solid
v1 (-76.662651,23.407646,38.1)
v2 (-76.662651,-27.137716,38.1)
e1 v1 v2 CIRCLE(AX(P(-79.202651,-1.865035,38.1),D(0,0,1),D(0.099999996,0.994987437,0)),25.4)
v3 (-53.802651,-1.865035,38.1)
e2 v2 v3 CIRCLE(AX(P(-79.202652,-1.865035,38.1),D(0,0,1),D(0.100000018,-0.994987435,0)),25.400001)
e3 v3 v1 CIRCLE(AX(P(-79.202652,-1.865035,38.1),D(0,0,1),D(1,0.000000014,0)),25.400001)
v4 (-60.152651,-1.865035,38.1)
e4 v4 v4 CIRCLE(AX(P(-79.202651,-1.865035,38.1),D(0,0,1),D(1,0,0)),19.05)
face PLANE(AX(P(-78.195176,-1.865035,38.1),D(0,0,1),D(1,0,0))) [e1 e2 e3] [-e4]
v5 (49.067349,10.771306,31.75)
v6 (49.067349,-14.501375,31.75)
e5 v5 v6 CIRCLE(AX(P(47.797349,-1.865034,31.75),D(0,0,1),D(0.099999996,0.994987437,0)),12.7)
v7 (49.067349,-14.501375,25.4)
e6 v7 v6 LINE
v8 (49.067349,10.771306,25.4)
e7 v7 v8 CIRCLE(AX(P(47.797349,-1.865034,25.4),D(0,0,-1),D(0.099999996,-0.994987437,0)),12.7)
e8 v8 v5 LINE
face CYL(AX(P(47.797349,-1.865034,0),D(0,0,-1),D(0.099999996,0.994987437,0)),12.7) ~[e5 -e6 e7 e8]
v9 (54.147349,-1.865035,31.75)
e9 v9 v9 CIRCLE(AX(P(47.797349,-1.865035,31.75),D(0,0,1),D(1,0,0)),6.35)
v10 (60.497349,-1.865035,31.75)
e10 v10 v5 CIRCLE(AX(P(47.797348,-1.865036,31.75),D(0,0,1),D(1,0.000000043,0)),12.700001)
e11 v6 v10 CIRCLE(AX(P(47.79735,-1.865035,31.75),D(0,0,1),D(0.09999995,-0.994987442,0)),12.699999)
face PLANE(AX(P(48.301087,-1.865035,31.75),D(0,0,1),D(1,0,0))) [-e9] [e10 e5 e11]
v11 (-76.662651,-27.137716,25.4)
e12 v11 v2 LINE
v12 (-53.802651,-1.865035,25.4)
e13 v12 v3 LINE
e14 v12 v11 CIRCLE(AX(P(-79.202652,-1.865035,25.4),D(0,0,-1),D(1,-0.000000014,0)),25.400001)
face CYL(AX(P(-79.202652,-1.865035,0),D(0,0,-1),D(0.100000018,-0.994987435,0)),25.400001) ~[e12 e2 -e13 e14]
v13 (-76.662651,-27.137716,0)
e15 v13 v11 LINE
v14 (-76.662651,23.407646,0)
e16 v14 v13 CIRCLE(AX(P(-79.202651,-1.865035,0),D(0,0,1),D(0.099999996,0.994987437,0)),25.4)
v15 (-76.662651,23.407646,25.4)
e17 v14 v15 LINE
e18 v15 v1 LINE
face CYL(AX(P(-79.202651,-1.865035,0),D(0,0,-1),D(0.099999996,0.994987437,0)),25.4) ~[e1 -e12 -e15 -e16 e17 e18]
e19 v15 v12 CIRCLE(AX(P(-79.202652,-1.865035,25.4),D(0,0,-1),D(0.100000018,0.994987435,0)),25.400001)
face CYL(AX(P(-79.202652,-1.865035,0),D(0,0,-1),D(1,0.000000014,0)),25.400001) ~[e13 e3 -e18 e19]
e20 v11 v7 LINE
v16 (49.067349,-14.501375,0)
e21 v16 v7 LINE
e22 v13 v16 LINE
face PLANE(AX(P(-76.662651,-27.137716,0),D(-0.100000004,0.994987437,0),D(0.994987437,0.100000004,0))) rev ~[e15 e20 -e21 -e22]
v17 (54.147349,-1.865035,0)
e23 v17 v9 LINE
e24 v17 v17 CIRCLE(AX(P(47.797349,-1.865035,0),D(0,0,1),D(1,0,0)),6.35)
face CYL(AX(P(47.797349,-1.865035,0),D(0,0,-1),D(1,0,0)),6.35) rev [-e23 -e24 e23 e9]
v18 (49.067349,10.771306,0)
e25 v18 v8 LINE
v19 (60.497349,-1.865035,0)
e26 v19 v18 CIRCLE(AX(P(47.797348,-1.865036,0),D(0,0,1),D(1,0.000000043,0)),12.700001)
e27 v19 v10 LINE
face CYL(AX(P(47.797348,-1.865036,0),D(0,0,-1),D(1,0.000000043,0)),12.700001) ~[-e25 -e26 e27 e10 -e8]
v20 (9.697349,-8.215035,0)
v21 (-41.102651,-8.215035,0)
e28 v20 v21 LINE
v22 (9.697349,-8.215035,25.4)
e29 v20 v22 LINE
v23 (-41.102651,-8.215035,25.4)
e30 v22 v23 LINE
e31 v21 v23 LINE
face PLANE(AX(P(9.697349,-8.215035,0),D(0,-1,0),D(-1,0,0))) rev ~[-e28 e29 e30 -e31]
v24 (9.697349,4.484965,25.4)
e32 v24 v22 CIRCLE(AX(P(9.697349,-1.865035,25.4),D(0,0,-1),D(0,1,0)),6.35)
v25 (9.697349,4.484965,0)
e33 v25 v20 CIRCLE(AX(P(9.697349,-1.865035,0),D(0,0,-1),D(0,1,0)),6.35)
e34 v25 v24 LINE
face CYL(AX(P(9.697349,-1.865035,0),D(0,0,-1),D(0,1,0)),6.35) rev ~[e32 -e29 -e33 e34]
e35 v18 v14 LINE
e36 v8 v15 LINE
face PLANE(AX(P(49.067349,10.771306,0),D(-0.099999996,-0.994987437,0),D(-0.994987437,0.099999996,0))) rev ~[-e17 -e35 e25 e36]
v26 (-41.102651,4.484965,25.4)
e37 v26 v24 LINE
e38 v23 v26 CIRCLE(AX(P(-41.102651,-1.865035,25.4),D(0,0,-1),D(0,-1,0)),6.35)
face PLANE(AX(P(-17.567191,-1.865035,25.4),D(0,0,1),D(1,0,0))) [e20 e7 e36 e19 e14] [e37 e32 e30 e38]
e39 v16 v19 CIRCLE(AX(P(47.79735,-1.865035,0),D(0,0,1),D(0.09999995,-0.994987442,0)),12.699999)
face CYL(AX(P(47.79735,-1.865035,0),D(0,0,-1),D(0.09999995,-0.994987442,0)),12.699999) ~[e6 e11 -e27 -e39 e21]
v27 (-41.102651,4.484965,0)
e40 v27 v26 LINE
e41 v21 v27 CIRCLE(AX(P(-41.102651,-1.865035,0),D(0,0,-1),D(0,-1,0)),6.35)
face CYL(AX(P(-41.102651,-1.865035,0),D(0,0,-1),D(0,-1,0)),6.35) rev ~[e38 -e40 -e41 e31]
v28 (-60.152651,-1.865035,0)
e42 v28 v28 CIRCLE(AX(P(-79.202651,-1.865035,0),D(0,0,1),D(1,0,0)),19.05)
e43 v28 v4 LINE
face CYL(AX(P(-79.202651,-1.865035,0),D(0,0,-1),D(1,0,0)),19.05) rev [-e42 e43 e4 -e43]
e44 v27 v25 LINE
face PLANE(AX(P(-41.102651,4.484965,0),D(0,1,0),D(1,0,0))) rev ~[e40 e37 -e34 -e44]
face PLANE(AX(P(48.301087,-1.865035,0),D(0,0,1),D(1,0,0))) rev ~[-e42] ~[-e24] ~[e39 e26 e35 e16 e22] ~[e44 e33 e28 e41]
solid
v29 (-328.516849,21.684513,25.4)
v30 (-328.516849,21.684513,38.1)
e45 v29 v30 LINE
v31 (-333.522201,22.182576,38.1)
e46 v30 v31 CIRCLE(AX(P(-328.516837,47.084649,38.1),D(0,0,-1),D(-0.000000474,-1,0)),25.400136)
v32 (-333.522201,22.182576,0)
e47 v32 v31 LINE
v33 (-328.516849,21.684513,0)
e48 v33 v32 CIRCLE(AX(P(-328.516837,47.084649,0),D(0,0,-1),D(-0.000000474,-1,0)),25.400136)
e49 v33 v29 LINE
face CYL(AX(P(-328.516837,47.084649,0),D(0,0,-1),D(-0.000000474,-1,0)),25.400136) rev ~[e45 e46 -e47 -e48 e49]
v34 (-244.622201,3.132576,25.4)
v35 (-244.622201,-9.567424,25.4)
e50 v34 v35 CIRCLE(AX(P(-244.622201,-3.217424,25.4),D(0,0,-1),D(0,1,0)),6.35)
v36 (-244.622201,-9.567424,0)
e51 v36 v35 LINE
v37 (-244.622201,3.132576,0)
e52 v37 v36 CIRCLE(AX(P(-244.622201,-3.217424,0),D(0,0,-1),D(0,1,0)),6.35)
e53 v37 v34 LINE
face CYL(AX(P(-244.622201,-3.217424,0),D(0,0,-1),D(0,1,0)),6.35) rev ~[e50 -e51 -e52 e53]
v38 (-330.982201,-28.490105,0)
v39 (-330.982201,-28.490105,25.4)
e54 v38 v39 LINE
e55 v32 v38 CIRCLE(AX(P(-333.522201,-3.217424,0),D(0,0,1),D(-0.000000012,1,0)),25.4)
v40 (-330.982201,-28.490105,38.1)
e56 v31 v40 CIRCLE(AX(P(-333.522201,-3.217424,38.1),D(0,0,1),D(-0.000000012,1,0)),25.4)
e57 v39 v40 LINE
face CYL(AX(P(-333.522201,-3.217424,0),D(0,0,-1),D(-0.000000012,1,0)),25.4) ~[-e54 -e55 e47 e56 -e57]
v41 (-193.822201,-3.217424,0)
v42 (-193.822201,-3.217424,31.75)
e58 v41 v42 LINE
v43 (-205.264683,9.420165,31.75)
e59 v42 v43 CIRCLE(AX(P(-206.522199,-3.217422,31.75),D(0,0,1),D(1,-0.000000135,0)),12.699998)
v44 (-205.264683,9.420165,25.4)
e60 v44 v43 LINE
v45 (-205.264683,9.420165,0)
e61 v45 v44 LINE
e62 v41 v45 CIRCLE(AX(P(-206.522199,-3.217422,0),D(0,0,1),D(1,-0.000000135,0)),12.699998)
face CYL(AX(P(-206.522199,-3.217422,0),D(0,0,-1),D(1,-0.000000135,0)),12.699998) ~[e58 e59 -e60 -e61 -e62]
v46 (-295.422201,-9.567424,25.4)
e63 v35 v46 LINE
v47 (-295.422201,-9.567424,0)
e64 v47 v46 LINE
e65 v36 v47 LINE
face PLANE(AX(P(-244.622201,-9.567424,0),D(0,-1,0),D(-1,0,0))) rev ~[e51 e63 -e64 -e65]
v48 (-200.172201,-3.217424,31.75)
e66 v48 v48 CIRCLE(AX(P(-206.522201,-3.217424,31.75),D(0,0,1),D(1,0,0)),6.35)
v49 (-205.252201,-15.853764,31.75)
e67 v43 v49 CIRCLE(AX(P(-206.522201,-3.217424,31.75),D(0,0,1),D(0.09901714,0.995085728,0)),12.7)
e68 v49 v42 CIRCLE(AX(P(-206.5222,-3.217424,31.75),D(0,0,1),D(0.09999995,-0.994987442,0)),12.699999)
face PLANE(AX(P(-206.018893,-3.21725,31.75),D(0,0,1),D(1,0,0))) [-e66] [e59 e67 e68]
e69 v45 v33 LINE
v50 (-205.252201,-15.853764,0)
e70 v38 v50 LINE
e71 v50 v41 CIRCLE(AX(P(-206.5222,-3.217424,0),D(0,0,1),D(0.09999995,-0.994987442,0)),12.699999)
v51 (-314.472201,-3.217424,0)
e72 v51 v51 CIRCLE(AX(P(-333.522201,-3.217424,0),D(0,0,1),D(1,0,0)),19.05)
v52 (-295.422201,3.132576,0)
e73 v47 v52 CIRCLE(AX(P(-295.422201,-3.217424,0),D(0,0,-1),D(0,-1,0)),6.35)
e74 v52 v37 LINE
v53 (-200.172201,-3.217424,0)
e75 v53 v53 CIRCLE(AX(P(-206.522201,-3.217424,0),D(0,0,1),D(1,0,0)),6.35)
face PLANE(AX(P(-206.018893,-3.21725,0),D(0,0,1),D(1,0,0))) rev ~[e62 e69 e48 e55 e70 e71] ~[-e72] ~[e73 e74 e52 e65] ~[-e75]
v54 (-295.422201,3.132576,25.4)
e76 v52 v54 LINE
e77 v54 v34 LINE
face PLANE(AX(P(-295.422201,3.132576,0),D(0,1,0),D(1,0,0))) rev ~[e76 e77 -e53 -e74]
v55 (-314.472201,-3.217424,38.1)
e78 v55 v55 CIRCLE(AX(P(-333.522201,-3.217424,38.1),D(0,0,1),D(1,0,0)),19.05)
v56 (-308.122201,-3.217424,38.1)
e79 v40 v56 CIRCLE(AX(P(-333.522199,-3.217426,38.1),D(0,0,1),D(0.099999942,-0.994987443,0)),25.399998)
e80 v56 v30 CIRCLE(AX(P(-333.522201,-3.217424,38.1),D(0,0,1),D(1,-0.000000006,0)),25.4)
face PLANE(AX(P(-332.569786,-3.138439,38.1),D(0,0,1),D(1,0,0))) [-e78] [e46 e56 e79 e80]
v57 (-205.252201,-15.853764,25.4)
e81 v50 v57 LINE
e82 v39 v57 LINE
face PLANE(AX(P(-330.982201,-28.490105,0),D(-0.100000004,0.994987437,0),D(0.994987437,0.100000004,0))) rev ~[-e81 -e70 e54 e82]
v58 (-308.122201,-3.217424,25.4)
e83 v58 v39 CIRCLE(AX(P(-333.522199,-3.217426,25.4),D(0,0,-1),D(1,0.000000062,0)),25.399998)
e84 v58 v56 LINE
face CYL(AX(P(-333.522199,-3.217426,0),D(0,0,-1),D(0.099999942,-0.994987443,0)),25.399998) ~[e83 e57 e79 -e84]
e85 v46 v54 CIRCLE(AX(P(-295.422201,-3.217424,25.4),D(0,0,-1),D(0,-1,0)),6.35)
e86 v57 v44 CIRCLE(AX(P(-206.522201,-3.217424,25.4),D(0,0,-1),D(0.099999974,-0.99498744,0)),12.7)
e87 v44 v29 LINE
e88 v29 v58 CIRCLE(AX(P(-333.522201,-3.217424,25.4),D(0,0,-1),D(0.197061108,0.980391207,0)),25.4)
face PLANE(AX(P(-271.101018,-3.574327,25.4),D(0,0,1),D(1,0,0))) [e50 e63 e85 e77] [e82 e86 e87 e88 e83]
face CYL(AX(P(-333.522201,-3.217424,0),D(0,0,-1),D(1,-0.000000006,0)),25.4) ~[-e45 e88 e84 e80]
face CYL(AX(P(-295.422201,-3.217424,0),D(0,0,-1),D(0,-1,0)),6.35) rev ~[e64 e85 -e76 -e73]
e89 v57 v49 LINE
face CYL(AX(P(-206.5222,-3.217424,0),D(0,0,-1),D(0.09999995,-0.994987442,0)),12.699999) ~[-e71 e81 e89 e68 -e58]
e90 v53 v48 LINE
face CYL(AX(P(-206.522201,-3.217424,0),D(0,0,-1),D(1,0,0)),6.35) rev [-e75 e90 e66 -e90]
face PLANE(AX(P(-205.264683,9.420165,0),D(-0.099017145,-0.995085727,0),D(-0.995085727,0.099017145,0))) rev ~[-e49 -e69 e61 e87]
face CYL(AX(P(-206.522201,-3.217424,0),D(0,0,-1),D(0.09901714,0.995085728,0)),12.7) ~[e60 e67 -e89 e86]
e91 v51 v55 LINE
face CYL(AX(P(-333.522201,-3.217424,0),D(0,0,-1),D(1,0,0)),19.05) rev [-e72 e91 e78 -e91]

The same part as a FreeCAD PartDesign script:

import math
import FreeCAD as App
import Part
import Sketcher

V = App.Vector
Q = App.Units.Quantity

doc = App.newDocument("Part")
params = doc.addObject("Spreadsheet::Sheet", "Params")
for row, (alias, value) in enumerate([
    ("sketch1_radius", "1 in"),
    ("sketch1_diameter", "1.5 in"),
    ("pad1_length", "1.5 in"),
    ("sketch2_radius", "1 in"),
    ("sketch2_radius2", "0.5 in"),
    ("sketch2_width", "2 in"),
    ("sketch2_radius3", "0.25 in"),
    ("pad2_length", "1 in"),
    ("sketch3_diameter", "0.5 in"),
    ("sketch3_radius", "0.5 in"),
    ("pad3_length", "1.25 in"),
    ("sketch4_radius", "1 in"),
    ("sketch4_diameter", "1.5 in"),
    ("pad4_length", "1.5 in"),
    ("sketch5_radius", "0.9999999 in"),
    ("sketch5_radius2", "0.5 in"),
    ("sketch5_width", "2 in"),
    ("sketch5_radius3", "0.25 in"),
    ("pad5_length", "1 in"),
    ("sketch6_diameter", "0.5 in"),
    ("sketch6_radius", "0.5 in"),
    ("pad6_length", "1.25 in"),
], start=1):
    params.set(f"A{row}", alias)
    params.set(f"B{row}", "=" + value)
    params.setAlias(f"B{row}", alias)

body = doc.addObject("PartDesign::Body", "Body")

sketch1 = doc.addObject("Sketcher::SketchObject", "Sketch")
body.addObject(sketch1)
sketch1.AttachmentSupport = (doc.XY_Plane, [""])
sketch1.MapMode = "FlatFace"
sketch1.addGeometry([
    Part.ArcOfCircle(Part.Circle(V(-79, -2, 0), V(0, 0, 1), 25), math.radians(-84), math.radians(0)),
    Part.ArcOfCircle(Part.Circle(V(-79, -2, 0), V(0, 0, 1), 25), math.radians(0), math.radians(84)),
    Part.ArcOfCircle(Part.Circle(V(-79, -2, 0), V(0, 0, 1), 25), math.radians(84), math.radians(276)),
    Part.Circle(V(-79, -2, 0), V(0, 0, 1), 19),
], False)
sketch1.addConstraint([
    Sketcher.Constraint("Tangent", 0, 2, 1, 1),
    Sketcher.Constraint("Tangent", 1, 2, 2, 1),
    Sketcher.Constraint("Tangent", 2, 2, 0, 1),
    Sketcher.Constraint("Coincident", 3, 3, 0, 3),
    Sketcher.Constraint("Horizontal", 3, 3, 0, 2),
    Sketcher.Constraint("Vertical", 1, 2, 2, 2),
    Sketcher.Constraint("Radius", 0, Q("1 in")),
    Sketcher.Constraint("Diameter", 3, Q("1.5 in")),
    Sketcher.Constraint("DistanceX", 0, 3, 1, 2, Q("0.1 in")),
    Sketcher.Constraint("DistanceX", 0, 3, -1, 1, Q("79.202652 mm")),
    Sketcher.Constraint("DistanceY", 0, 3, -1, 1, Q("1.865035 mm")),
])
sketch1.setExpression("Constraints[6]", "Params.sketch1_radius")
sketch1.setExpression("Constraints[7]", "Params.sketch1_diameter")
pad1 = doc.addObject("PartDesign::Pad", "Pad")
body.addObject(pad1)
pad1.Profile = sketch1
pad1.setExpression("Length", "Params.pad1_length")

sketch2 = doc.addObject("Sketcher::SketchObject", "Sketch001")
body.addObject(sketch2)
sketch2.AttachmentSupport = (doc.XY_Plane, [""])
sketch2.MapMode = "FlatFace"
sketch2.addGeometry([
    Part.ArcOfCircle(Part.Circle(V(-79, -2, 0), V(0, 0, 1), 25), math.radians(0), math.radians(84)),
    Part.ArcOfCircle(Part.Circle(V(-79, -2, 0), V(0, 0, 1), 25), math.radians(-84), math.radians(0)),
    Part.LineSegment(V(-77, -27, 0), V(49, -15, 0)),
    Part.ArcOfCircle(Part.Circle(V(48, -2, 0), V(0, 0, 1), 13), math.radians(84), math.radians(276)),
    Part.LineSegment(V(49, 11, 0), V(-77, 23, 0)),
    Part.LineSegment(V(10, -8, 0), V(-41, -8, 0)),
    Part.ArcOfCircle(Part.Circle(V(-41, -2, 0), V(0, 0, 1), 6), math.radians(90), math.radians(270)),
    Part.LineSegment(V(-41, 4, 0), V(10, 4, 0)),
    Part.ArcOfCircle(Part.Circle(V(10, -2, 0), V(0, 0, 1), 6), math.radians(-90), math.radians(90)),
], False)
sketch2.addConstraint([
    Sketcher.Constraint("Tangent", 0, 1, 1, 2),
    Sketcher.Constraint("Tangent", 1, 1, 2, 1),
    Sketcher.Constraint("Tangent", 2, 2, 3, 2),
    Sketcher.Constraint("Tangent", 3, 1, 4, 1),
    Sketcher.Constraint("Tangent", 4, 2, 0, 2),
    Sketcher.Constraint("Tangent", 5, 2, 6, 2),
    Sketcher.Constraint("Tangent", 6, 1, 7, 1),
    Sketcher.Constraint("Tangent", 7, 2, 8, 2),
    Sketcher.Constraint("Tangent", 8, 1, 5, 1),
    Sketcher.Constraint("Horizontal", 5),
    Sketcher.Constraint("Horizontal", 7),
    Sketcher.Constraint("Equal", 0, 1),
    Sketcher.Constraint("Horizontal", 1, 3, 3, 3),
    Sketcher.Constraint("Horizontal", 3, 3, 6, 3),
    Sketcher.Constraint("Horizontal", 8, 3, 0, 1),
    Sketcher.Constraint("Radius", 0, Q("1 in")),
    Sketcher.Constraint("Radius", 3, Q("0.5 in")),
    Sketcher.Constraint("DistanceX", 5, 2, 5, 1, Q("2 in")),
    Sketcher.Constraint("Radius", 6, Q("0.25 in")),
    Sketcher.Constraint("DistanceX", 0, 3, 3, 3, Q("5 in")),
    Sketcher.Constraint("DistanceX", 0, 3, 6, 3, Q("1.5 in")),
    Sketcher.Constraint("DistanceX", 0, 3, -1, 1, Q("79.202652 mm")),
    Sketcher.Constraint("DistanceY", 0, 3, -1, 1, Q("1.865035 mm")),
])
sketch2.setExpression("Constraints[15]", "Params.sketch2_radius")
sketch2.setExpression("Constraints[16]", "Params.sketch2_radius2")
sketch2.setExpression("Constraints[17]", "Params.sketch2_width")
sketch2.setExpression("Constraints[18]", "Params.sketch2_radius3")
pad2 = doc.addObject("PartDesign::Pad", "Pad001")
body.addObject(pad2)
pad2.Profile = sketch2
pad2.setExpression("Length", "Params.pad2_length")

sketch3 = doc.addObject("Sketcher::SketchObject", "Sketch002")
body.addObject(sketch3)
sketch3.AttachmentSupport = (doc.XY_Plane, [""])
sketch3.MapMode = "FlatFace"
sketch3.addGeometry([
    Part.ArcOfCircle(Part.Circle(V(48, -2, 0), V(0, 0, 1), 13), math.radians(0), math.radians(84)),
    Part.ArcOfCircle(Part.Circle(V(48, -2, 0), V(0, 0, 1), 13), math.radians(84), math.radians(276)),
    Part.ArcOfCircle(Part.Circle(V(48, -2, 0), V(0, 0, 1), 13), math.radians(-84), math.radians(0)),
    Part.Circle(V(48, -2, 0), V(0, 0, 1), 6),
], False)
sketch3.addConstraint([
    Sketcher.Constraint("Tangent", 0, 2, 1, 1),
    Sketcher.Constraint("Tangent", 1, 2, 2, 1),
    Sketcher.Constraint("Tangent", 2, 2, 0, 1),
    Sketcher.Constraint("Coincident", 3, 3, 0, 3),
    Sketcher.Constraint("Horizontal", 3, 3, 2, 2),
    Sketcher.Constraint("Vertical", 0, 2, 1, 2),
    Sketcher.Constraint("Diameter", 3, Q("0.5 in")),
    Sketcher.Constraint("Radius", 0, Q("0.5 in")),
    Sketcher.Constraint("DistanceX", 1, 3, 0, 2, Q("0.05 in")),
    Sketcher.Constraint("DistanceX", -1, 1, 1, 3, Q("47.797349 mm")),
    Sketcher.Constraint("DistanceY", 0, 3, -1, 1, Q("1.865036 mm")),
])
sketch3.setExpression("Constraints[6]", "Params.sketch3_diameter")
sketch3.setExpression("Constraints[7]", "Params.sketch3_radius")
pad3 = doc.addObject("PartDesign::Pad", "Pad002")
body.addObject(pad3)
pad3.Profile = sketch3
pad3.setExpression("Length", "Params.pad3_length")
body2 = doc.addObject("PartDesign::Body", "Body001")

sketch4 = doc.addObject("Sketcher::SketchObject", "Sketch003")
body2.addObject(sketch4)
sketch4.AttachmentSupport = (doc.getObject("XY_Plane001"), [""])
sketch4.MapMode = "FlatFace"
sketch4.addGeometry([
    Part.ArcOfCircle(Part.Circle(V(-329, 47, 0), V(0, 0, 1), 25), math.radians(-101.37), math.radians(-90)),
    Part.ArcOfCircle(Part.Circle(V(-334, -3, 0), V(0, 0, 1), 25), math.radians(90), math.radians(276)),
    Part.ArcOfCircle(Part.Circle(V(-334, -3, 0), V(0, 0, 1), 25), math.radians(-84), math.radians(0)),
    Part.ArcOfCircle(Part.Circle(V(-334, -3, 0), V(0, 0, 1), 25), math.radians(0), math.radians(79)),
    Part.Circle(V(-334, -3, 0), V(0, 0, 1), 19),
], False)
sketch4.addConstraint([
    Sketcher.Constraint("Coincident", 0, 1, 1, 1),
    Sketcher.Constraint("Tangent", 1, 2, 2, 1),
    Sketcher.Constraint("Tangent", 2, 2, 3, 1),
    Sketcher.Constraint("Coincident", 3, 2, 0, 2),
    Sketcher.Constraint("Coincident", 3, 3, 1, 3),
    Sketcher.Constraint("Coincident", 4, 3, 1, 3),
    Sketcher.Constraint("Horizontal", 4, 3, 2, 2),
    Sketcher.Constraint("Vertical", 4, 3, 0, 1),
    Sketcher.Constraint("Radius", 1, Q("1 in")),
    Sketcher.Constraint("Diameter", 4, Q("1.5 in")),
    Sketcher.Constraint("DistanceX", 2, 3, 1, 2, Q("0.0999999 in")),
    Sketcher.Constraint("Radius", 0, Q("25.400136 mm")),
    Sketcher.Constraint("DistanceX", 1, 3, -1, 1, Q("333.522201 mm")),
    Sketcher.Constraint("DistanceY", -1, 1, 0, 3, Q("47.084649 mm")),
    Sketcher.Constraint("DistanceX", 3, 2, -1, 1, Q("328.516849 mm")),
])
sketch4.setExpression("Constraints[8]", "Params.sketch4_radius")
sketch4.setExpression("Constraints[9]", "Params.sketch4_diameter")
pad4 = doc.addObject("PartDesign::Pad", "Pad003")
body2.addObject(pad4)
pad4.Profile = sketch4
pad4.setExpression("Length", "Params.pad4_length")

sketch5 = doc.addObject("Sketcher::SketchObject", "Sketch004")
body2.addObject(sketch5)
sketch5.AttachmentSupport = (doc.getObject("XY_Plane001"), [""])
sketch5.MapMode = "FlatFace"
sketch5.addGeometry([
    Part.ArcOfCircle(Part.Circle(V(-334, -3, 0), V(0, 0, 1), 25), math.radians(-84), math.radians(0)),
    Part.LineSegment(V(-331, -28, 0), V(-205, -16, 0)),
    Part.ArcOfCircle(Part.Circle(V(-207, -3, 0), V(0, 0, 1), 13), math.radians(84), math.radians(276)),
    Part.LineSegment(V(-205, 9, 0), V(-329, 22, 0)),
    Part.ArcOfCircle(Part.Circle(V(-334, -3, 0), V(0, 0, 1), 25), math.radians(0), math.radians(79)),
    Part.LineSegment(V(-245, -10, 0), V(-295, -10, 0)),
    Part.ArcOfCircle(Part.Circle(V(-295, -3, 0), V(0, 0, 1), 6), math.radians(90), math.radians(270)),
    Part.LineSegment(V(-295, 3, 0), V(-245, 3, 0)),
    Part.ArcOfCircle(Part.Circle(V(-245, -3, 0), V(0, 0, 1), 6), math.radians(-90), math.radians(90)),
], False)
sketch5.addConstraint([
    Sketcher.Constraint("Tangent", 0, 1, 1, 1),
    Sketcher.Constraint("Tangent", 1, 2, 2, 2),
    Sketcher.Constraint("Tangent", 2, 1, 3, 1),
    Sketcher.Constraint("Coincident", 3, 2, 4, 2),
    Sketcher.Constraint("Tangent", 4, 1, 0, 2),
    Sketcher.Constraint("Tangent", 5, 2, 6, 2),
    Sketcher.Constraint("Tangent", 6, 1, 7, 1),
    Sketcher.Constraint("Tangent", 7, 2, 8, 2),
    Sketcher.Constraint("Tangent", 8, 1, 5, 1),
    Sketcher.Constraint("Horizontal", 5),
    Sketcher.Constraint("Horizontal", 7),
    Sketcher.Constraint("Equal", 0, 4),
    Sketcher.Constraint("Horizontal", 0, 3, 2, 3),
    Sketcher.Constraint("Horizontal", 4, 3, 6, 3),
    Sketcher.Constraint("Horizontal", 8, 3, 4, 1),
    Sketcher.Constraint("Radius", 0, Q("0.9999999 in")),
    Sketcher.Constraint("Radius", 2, Q("0.5 in")),
    Sketcher.Constraint("DistanceX", 5, 2, 5, 1, Q("2 in")),
    Sketcher.Constraint("Radius", 6, Q("0.25 in")),
    Sketcher.Constraint("DistanceX", 0, 3, 2, 3, Q("4.9999999 in")),
    Sketcher.Constraint("DistanceX", 0, 3, 6, 3, Q("1.4999999 in")),
    Sketcher.Constraint("DistanceX", 0, 3, -1, 1, Q("333.522199 mm")),
    Sketcher.Constraint("Distance", 3, Q("123.860852 mm")),
    Sketcher.Constraint("DistanceY", 0, 3, -1, 1, Q("3.217426 mm")),
])
sketch5.setExpression("Constraints[15]", "Params.sketch5_radius")
sketch5.setExpression("Constraints[16]", "Params.sketch5_radius2")
sketch5.setExpression("Constraints[17]", "Params.sketch5_width")
sketch5.setExpression("Constraints[18]", "Params.sketch5_radius3")
pad5 = doc.addObject("PartDesign::Pad", "Pad004")
body2.addObject(pad5)
pad5.Profile = sketch5
pad5.setExpression("Length", "Params.pad5_length")

sketch6 = doc.addObject("Sketcher::SketchObject", "Sketch005")
body2.addObject(sketch6)
sketch6.AttachmentSupport = (doc.getObject("XY_Plane001"), [""])
sketch6.MapMode = "FlatFace"
sketch6.addGeometry([
    Part.ArcOfCircle(Part.Circle(V(-207, -3, 0), V(0, 0, 1), 13), math.radians(84), math.radians(276)),
    Part.ArcOfCircle(Part.Circle(V(-207, -3, 0), V(0, 0, 1), 13), math.radians(-84), math.radians(0)),
    Part.ArcOfCircle(Part.Circle(V(-207, -3, 0), V(0, 0, 1), 13), math.radians(0), math.radians(84)),
    Part.Circle(V(-207, -3, 0), V(0, 0, 1), 6),
], False)
sketch6.addConstraint([
    Sketcher.Constraint("Tangent", 0, 2, 1, 1),
    Sketcher.Constraint("Tangent", 1, 2, 2, 1),
    Sketcher.Constraint("Tangent", 2, 2, 0, 1),
    Sketcher.Constraint("Coincident", 3, 3, 0, 3),
    Sketcher.Constraint("Horizontal", 3, 3, 1, 2),
    Sketcher.Constraint("Diameter", 3, Q("0.5 in")),
    Sketcher.Constraint("Radius", 0, Q("0.5 in")),
    Sketcher.Constraint("DistanceX", 1, 3, 0, 2, Q("0.05 in")),
    Sketcher.Constraint("DistanceX", 0, 3, -1, 1, Q("206.522201 mm")),
    Sketcher.Constraint("DistanceY", 0, 3, 2, 2, Q("12.637589 mm")),
    Sketcher.Constraint("DistanceY", 0, 3, -1, 1, Q("3.217424 mm")),
])
sketch6.setExpression("Constraints[5]", "Params.sketch6_diameter")
sketch6.setExpression("Constraints[6]", "Params.sketch6_radius")
pad6 = doc.addObject("PartDesign::Pad", "Pad005")
body2.addObject(pad6)
pad6.Profile = sketch6
pad6.setExpression("Length", "Params.pad6_length")

doc.recompute()
